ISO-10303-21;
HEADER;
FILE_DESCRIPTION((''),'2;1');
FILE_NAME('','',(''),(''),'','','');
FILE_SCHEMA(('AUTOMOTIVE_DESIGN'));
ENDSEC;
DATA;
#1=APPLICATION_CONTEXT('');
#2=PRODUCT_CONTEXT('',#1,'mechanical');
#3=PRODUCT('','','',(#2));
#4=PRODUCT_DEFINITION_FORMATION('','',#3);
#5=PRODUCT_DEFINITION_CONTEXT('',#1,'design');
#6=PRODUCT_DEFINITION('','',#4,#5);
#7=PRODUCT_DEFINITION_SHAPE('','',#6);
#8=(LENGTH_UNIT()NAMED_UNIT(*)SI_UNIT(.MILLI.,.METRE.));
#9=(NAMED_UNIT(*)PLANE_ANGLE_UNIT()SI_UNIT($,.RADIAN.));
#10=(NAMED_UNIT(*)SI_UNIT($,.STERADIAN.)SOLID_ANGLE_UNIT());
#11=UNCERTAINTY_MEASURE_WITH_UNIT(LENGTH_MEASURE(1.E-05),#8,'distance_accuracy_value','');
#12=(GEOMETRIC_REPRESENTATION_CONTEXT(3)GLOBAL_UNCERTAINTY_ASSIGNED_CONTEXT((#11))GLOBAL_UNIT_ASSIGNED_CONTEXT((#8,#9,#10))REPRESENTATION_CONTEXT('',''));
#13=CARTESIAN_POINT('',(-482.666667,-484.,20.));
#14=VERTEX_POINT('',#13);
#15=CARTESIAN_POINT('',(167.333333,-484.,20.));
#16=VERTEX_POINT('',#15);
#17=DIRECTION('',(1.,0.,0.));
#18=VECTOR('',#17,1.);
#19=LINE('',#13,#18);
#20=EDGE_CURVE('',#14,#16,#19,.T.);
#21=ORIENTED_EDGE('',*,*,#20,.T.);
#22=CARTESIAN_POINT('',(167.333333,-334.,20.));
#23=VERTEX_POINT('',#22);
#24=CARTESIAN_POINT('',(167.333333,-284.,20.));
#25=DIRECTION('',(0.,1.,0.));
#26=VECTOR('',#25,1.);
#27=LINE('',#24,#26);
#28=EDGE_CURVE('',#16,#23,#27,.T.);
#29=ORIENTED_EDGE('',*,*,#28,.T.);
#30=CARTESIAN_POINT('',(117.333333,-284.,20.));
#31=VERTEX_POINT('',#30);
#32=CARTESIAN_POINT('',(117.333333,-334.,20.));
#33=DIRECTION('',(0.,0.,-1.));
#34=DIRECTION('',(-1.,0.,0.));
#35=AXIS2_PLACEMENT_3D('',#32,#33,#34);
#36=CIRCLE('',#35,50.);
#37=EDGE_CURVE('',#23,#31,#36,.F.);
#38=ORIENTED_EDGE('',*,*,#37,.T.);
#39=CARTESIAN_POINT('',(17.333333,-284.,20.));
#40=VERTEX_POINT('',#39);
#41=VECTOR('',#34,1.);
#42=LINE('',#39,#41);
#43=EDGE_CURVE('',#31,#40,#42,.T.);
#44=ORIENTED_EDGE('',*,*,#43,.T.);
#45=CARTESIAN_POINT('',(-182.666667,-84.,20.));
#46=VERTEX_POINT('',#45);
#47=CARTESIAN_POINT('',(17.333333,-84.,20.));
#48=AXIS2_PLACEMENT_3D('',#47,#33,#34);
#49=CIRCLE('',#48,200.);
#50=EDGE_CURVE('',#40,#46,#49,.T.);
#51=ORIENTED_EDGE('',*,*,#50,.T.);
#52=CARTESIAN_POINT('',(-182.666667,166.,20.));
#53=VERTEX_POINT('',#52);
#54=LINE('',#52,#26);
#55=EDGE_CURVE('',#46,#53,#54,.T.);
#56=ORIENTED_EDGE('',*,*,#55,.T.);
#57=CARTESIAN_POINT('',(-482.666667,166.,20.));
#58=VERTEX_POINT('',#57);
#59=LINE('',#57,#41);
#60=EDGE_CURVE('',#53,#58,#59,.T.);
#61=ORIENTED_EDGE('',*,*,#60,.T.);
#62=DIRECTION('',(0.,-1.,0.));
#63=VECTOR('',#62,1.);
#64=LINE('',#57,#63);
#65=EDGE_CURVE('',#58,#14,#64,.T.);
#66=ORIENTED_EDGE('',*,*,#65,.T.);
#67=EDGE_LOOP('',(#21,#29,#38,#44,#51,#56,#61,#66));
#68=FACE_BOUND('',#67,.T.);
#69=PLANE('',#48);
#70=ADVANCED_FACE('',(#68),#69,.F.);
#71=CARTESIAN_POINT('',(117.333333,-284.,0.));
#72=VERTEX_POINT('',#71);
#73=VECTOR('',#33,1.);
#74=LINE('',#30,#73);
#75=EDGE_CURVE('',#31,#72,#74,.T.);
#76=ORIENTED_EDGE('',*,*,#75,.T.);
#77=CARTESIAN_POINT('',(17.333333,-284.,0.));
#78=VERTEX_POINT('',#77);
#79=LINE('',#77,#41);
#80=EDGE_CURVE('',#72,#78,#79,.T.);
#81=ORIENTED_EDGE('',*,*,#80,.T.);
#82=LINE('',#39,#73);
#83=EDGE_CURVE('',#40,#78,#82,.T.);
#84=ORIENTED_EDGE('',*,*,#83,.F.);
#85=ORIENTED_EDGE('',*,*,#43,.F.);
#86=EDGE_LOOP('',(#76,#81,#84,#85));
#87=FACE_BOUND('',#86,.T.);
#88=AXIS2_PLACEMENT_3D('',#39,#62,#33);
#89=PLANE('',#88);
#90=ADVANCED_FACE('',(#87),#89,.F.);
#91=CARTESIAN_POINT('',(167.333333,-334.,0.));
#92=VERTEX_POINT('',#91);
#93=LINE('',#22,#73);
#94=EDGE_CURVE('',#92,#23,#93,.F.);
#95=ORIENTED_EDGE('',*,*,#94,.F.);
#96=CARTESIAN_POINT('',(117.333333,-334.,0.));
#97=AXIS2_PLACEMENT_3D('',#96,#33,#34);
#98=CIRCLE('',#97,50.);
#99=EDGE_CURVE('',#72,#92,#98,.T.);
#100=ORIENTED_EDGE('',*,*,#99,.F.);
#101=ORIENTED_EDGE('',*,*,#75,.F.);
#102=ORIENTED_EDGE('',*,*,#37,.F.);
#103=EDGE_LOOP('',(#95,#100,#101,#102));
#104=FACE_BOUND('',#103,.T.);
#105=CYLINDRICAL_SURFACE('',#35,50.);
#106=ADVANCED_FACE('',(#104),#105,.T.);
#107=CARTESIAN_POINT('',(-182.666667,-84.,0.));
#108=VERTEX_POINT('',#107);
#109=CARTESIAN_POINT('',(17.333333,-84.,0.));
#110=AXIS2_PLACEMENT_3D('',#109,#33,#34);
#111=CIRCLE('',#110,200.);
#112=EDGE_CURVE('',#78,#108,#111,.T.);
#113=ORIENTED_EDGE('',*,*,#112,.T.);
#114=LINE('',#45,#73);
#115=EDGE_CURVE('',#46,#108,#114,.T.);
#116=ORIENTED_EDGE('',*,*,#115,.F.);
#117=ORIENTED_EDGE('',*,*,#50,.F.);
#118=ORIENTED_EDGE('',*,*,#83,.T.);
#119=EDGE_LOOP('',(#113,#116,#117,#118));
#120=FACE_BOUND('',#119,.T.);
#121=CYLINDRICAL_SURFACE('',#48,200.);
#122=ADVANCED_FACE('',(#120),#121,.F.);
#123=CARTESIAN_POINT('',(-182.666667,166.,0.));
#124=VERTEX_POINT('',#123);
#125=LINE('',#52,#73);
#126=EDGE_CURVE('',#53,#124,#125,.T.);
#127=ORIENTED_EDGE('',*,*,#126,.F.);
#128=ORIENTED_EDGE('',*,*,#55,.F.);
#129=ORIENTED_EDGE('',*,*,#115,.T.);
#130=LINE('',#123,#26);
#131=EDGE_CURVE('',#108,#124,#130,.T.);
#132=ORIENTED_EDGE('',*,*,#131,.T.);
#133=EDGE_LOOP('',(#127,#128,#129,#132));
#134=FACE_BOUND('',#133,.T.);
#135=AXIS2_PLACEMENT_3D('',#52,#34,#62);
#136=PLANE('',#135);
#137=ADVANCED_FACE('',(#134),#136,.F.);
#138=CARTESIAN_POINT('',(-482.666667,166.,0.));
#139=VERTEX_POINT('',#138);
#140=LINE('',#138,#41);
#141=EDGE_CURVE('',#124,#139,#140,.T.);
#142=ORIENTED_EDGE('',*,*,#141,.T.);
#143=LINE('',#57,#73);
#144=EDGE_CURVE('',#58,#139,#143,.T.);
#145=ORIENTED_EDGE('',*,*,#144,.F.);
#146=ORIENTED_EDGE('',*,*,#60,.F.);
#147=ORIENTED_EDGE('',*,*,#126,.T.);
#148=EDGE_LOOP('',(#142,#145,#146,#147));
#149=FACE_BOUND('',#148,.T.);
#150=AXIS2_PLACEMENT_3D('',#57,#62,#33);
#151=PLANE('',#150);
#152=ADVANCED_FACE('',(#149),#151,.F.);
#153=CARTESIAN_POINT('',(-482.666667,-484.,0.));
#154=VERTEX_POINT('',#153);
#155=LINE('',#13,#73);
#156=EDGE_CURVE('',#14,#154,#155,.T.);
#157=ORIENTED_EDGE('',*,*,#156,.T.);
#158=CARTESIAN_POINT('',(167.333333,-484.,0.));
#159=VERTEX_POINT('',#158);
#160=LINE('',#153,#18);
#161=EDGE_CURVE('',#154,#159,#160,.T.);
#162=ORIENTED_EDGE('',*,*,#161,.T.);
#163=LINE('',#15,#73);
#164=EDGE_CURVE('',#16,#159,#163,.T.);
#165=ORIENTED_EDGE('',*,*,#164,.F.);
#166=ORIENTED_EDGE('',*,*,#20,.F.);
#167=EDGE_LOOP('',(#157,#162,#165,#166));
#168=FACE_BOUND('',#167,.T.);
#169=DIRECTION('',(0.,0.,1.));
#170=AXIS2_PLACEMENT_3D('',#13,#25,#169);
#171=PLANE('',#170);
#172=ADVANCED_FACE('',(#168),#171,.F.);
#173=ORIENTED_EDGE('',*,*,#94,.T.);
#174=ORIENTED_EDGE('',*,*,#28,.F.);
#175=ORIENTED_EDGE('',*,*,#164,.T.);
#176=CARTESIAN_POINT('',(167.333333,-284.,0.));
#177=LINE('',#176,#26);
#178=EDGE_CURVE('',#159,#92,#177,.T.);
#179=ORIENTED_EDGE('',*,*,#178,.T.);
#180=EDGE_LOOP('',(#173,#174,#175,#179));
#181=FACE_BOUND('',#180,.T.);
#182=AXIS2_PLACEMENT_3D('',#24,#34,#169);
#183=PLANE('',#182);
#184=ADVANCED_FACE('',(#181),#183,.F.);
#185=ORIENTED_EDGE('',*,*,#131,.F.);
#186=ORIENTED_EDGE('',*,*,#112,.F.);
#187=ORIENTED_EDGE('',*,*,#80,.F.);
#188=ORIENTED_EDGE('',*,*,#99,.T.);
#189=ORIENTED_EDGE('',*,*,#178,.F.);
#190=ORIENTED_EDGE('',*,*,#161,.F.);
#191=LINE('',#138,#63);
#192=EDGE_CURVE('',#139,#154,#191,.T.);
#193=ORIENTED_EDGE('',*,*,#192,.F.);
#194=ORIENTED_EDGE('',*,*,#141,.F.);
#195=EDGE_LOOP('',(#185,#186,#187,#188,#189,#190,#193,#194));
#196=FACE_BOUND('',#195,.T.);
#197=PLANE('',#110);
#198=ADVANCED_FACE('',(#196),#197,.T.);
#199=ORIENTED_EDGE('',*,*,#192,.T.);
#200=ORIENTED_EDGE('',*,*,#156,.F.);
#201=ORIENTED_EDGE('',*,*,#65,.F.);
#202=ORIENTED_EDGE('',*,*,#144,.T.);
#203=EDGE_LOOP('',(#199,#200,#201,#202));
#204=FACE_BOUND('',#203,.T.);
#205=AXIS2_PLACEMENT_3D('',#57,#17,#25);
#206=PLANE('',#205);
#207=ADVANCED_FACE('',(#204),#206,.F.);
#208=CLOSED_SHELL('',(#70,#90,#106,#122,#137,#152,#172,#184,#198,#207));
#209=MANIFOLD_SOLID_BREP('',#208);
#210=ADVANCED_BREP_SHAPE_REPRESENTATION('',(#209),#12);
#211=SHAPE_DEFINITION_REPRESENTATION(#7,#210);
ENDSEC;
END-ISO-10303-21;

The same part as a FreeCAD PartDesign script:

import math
import FreeCAD as App
import Part
import Sketcher
from FreeCAD import Vector
Q = App.Units.Quantity


def edges_at(feature, points):
    """Names of the edges that pass closest to the given points."""
    edges = feature.Shape.Edges
    near = lambda p: min(range(len(edges)), key=lambda i: edges[i].distToShape(Part.Vertex(*p))[0])
    return sorted({f"Edge{near(p) + 1}" for p in points})

doc = App.newDocument("Part")
body = doc.addObject("PartDesign::Body", "Body")

sketch1 = body.newObject("Sketcher::SketchObject", "Sketch")
sketch1.AttachmentSupport = (doc.getObject("XY_Plane"), [""])
sketch1.MapMode = "FlatFace"
sketch1.addGeometry(Part.LineSegment(Vector(-182.666667, 166, 0), Vector(-482.666667, 166, 0)), False)
sketch1.addGeometry(Part.LineSegment(Vector(-482.666667, 166, 0), Vector(-482.666667, -484, 0)), False)
sketch1.addGeometry(Part.LineSegment(Vector(-482.666667, -484, 0), Vector(167.333333, -484, 0)), False)
sketch1.addGeometry(Part.LineSegment(Vector(167.333333, -484, 0), Vector(167.333333, -284, 0)), False)
sketch1.addGeometry(Part.LineSegment(Vector(167.333333, -284, 0), Vector(17.333333, -284, 0)), False)
sketch1.addGeometry(Part.ArcOfCircle(Part.Circle(Vector(17.333333, -84, 0), Vector(0, 0, 1), 200), math.radians(-180), math.radians(-90)), False)
sketch1.addGeometry(Part.LineSegment(Vector(-182.666667, -84, 0), Vector(-182.666667, 166, 0)), False)
sketch1.addConstraint(Sketcher.Constraint("Coincident", 0, 2, 1, 1))
sketch1.addConstraint(Sketcher.Constraint("Coincident", 1, 2, 2, 1))
sketch1.addConstraint(Sketcher.Constraint("Coincident", 2, 2, 3, 1))
sketch1.addConstraint(Sketcher.Constraint("Coincident", 3, 2, 4, 1))
sketch1.addConstraint(Sketcher.Constraint("Tangent", 4, 2, 5, 2))
sketch1.addConstraint(Sketcher.Constraint("Tangent", 5, 1, 6, 1))
sketch1.addConstraint(Sketcher.Constraint("Coincident", 6, 2, 0, 1))
sketch1.addConstraint(Sketcher.Constraint("Horizontal", 0))
sketch1.addConstraint(Sketcher.Constraint("Vertical", 1))
sketch1.addConstraint(Sketcher.Constraint("Horizontal", 2))
sketch1.addConstraint(Sketcher.Constraint("Vertical", 3))
sketch1.addConstraint(Sketcher.Constraint("Horizontal", 4))
sketch1.addConstraint(Sketcher.Constraint("Vertical", 6))
sketch1.addConstraint(Sketcher.Constraint("Equal", 2, 1))
sketch1.addConstraint(Sketcher.Constraint("Radius", 5, Q("200 mm")))
sketch1.addConstraint(Sketcher.Constraint("DistanceX", 0, 2, 0, 1, Q("300 mm")))
sketch1.addConstraint(Sketcher.Constraint("DistanceX", 2, 1, 2, 2, Q("650 mm")))
sketch1.addConstraint(Sketcher.Constraint("DistanceY", 3, 1, 3, 2, Q("200 mm")))
sketch1.addConstraint(Sketcher.Constraint("DistanceY", 5, 3, -1, 1, Q("84 mm")))
sketch1.addConstraint(Sketcher.Constraint("DistanceX", -1, 1, 5, 3, Q("17.333333 mm")))
pad1 = body.newObject("PartDesign::Pad", "Pad")
pad1.Profile = sketch1
pad1.Length = 20
doc.recompute()

fillet = body.newObject("PartDesign::Fillet", "Fillet")
fillet.Base = (pad1, edges_at(pad1, [(167.333, -284, 10)]))
fillet.Radius = 50

doc.recompute()
